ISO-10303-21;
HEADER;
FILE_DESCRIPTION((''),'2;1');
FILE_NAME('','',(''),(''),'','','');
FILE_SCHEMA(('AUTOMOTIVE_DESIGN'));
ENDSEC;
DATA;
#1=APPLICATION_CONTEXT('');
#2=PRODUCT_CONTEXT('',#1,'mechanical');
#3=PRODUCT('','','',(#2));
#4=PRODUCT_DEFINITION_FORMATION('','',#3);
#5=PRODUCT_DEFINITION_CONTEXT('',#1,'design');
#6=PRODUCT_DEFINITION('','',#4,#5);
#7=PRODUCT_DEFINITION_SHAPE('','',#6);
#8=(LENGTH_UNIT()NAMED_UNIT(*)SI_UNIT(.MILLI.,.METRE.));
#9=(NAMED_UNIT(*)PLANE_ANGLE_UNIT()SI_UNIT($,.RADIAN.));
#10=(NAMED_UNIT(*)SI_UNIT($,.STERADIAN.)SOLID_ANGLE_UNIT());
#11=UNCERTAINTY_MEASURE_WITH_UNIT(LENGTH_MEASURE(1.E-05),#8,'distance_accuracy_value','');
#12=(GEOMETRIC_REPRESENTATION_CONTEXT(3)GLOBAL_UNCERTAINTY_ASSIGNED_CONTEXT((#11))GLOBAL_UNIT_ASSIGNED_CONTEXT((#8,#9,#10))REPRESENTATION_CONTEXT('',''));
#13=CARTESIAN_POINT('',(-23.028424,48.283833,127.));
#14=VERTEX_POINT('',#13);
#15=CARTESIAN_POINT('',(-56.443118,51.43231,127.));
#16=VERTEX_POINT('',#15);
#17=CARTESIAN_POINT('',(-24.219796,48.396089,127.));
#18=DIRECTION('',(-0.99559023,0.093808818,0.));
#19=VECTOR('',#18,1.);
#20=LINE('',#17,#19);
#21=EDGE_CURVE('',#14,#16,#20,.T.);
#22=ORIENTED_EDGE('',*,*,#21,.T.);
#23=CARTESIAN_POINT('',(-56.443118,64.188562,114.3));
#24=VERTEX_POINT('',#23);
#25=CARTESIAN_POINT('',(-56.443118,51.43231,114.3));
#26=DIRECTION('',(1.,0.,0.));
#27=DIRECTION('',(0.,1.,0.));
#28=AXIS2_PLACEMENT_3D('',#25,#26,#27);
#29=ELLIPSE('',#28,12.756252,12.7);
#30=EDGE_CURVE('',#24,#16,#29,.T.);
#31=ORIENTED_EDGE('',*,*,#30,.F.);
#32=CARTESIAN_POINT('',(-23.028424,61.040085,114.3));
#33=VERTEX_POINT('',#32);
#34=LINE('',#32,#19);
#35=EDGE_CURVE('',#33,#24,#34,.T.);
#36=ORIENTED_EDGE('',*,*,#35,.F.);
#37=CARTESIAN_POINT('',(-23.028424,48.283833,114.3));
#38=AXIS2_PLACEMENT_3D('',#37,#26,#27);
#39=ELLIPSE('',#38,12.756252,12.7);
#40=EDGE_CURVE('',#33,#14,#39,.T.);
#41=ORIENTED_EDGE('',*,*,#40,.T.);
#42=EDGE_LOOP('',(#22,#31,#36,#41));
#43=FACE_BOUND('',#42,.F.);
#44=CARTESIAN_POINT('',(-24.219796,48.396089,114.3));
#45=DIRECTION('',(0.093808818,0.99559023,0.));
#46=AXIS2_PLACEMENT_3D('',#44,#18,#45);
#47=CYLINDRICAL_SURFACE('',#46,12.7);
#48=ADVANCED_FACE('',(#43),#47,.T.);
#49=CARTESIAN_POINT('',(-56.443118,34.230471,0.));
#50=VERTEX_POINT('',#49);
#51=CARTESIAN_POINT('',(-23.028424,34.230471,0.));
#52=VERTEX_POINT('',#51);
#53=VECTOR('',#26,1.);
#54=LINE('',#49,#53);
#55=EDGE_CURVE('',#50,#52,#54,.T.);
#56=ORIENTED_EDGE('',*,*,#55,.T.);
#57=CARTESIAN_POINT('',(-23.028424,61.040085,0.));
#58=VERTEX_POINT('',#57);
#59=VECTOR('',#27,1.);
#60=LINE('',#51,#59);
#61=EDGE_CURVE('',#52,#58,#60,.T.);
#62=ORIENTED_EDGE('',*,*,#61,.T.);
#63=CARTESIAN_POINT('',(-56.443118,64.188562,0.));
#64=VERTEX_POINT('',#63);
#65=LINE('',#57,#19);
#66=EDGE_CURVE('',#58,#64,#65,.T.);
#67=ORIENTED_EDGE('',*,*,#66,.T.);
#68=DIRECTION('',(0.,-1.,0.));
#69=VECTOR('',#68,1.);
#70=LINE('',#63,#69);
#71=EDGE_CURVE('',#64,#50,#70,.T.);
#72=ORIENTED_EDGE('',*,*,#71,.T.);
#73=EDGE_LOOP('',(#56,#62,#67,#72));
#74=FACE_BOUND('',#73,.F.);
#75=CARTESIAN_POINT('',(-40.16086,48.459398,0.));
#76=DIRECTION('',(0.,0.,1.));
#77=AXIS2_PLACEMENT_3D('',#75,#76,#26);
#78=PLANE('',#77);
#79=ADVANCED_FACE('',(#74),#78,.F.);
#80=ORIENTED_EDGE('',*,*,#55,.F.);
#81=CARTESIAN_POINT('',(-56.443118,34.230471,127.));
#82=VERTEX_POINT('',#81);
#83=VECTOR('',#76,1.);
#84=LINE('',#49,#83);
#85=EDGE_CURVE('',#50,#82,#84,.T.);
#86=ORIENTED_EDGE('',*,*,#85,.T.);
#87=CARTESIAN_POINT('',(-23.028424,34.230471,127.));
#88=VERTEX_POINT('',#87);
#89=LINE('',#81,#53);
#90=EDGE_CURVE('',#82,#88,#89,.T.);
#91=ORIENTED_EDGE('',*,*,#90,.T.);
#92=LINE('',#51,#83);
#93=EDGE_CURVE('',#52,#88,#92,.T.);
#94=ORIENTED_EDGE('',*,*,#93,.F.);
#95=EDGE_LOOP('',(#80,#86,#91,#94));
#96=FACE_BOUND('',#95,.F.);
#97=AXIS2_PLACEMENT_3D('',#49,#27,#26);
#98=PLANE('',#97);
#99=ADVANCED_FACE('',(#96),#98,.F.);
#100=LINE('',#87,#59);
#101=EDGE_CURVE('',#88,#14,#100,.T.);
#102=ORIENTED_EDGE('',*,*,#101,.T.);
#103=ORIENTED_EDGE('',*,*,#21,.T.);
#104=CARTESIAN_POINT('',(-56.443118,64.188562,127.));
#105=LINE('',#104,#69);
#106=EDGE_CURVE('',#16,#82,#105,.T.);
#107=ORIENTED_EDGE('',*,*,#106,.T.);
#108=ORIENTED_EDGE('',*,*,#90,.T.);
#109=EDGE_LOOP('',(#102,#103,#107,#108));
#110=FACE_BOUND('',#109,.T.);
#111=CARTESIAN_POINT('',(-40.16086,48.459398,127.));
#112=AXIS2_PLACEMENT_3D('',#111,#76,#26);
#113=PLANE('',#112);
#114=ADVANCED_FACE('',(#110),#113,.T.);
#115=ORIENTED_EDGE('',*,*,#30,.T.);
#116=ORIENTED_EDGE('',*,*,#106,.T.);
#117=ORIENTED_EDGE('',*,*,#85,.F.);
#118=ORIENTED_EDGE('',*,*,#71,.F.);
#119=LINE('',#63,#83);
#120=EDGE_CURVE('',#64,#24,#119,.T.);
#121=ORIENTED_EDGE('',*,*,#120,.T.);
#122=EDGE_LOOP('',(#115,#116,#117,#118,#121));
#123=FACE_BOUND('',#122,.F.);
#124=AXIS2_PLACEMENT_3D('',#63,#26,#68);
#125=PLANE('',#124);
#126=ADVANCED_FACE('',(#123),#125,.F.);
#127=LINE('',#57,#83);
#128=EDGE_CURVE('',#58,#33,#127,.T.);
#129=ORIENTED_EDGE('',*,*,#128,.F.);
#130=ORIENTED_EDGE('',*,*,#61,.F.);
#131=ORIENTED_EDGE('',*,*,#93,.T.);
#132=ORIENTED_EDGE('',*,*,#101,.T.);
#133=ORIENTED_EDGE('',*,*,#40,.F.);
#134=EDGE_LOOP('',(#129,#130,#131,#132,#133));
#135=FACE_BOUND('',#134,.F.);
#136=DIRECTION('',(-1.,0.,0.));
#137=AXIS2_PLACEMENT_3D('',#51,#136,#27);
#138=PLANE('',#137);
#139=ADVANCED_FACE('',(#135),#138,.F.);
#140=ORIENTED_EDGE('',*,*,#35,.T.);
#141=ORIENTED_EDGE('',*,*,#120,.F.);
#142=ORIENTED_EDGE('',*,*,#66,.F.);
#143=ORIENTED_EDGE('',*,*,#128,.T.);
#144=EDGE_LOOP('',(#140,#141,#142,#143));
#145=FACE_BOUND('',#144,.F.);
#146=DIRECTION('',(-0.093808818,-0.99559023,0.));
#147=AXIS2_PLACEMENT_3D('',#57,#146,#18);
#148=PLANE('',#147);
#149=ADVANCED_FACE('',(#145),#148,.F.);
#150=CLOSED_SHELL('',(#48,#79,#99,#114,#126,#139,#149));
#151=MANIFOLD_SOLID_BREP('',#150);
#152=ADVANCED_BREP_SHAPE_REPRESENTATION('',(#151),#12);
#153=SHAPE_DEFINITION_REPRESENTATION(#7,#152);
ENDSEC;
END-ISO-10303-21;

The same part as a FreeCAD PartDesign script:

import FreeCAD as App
import Part
import Sketcher

V = App.Vector
Q = App.Units.Quantity


def edges_at(feature, points):
    """Names of the edges that pass closest to the given points."""
    edges = feature.Shape.Edges
    near = lambda p: min(range(len(edges)), key=lambda i: edges[i].distToShape(Part.Vertex(*p))[0])
    return sorted({f"Edge{near(p) + 1}" for p in points})

doc = App.newDocument("Part")
body = doc.addObject("PartDesign::Body", "Body")

# Sketch on XY plane
sketch1 = doc.addObject("Sketcher::SketchObject", "Sketch")
body.addObject(sketch1)
sketch1.AttachmentSupport = (doc.XY_Plane, [""])
sketch1.MapMode = "FlatFace"
sketch1.addGeometry([
    Part.LineSegment(V(-23, 34, 0), V(-23, 61, 0)),
    Part.LineSegment(V(-23, 61, 0), V(-56, 64, 0)),
    Part.LineSegment(V(-56, 64, 0), V(-56, 34, 0)),
    Part.LineSegment(V(-56, 34, 0), V(-23, 34, 0)),
], False)
sketch1.addConstraint([
    Sketcher.Constraint("Coincident", 0, 2, 1, 1),
    Sketcher.Constraint("Coincident", 1, 2, 2, 1),
    Sketcher.Constraint("Coincident", 2, 2, 3, 1),
    Sketcher.Constraint("Coincident", 3, 2, 0, 1),
    Sketcher.Constraint("Vertical", 0),
    Sketcher.Constraint("Vertical", 2),
    Sketcher.Constraint("Horizontal", 3),
    Sketcher.Constraint("DistanceY", 2, 2, 2, 1, Q("29.958091 mm")),
    Sketcher.Constraint("DistanceX", 3, 1, 3, 2, Q("33.414694 mm")),
    Sketcher.Constraint("DistanceY", 0, 1, 0, 2, Q("26.809614 mm")),
    Sketcher.Constraint("DistanceY", -1, 1, 2, 2, Q("34.230471 mm")),
    Sketcher.Constraint("DistanceX", 0, 2, -1, 1, Q("23.028424 mm")),
])
pad1 = doc.addObject("PartDesign::Pad", "Pad")
body.addObject(pad1)
pad1.Profile = sketch1
pad1.Length = Q("5 in")
doc.recompute()

fillet = doc.addObject("PartDesign::Fillet", "Fillet")
body.addObject(fillet)
fillet.Base = (pad1, edges_at(pad1, [(-39.736, 62.614, 127)]))
fillet.Radius = Q("0.5 in")

doc.recompute()
